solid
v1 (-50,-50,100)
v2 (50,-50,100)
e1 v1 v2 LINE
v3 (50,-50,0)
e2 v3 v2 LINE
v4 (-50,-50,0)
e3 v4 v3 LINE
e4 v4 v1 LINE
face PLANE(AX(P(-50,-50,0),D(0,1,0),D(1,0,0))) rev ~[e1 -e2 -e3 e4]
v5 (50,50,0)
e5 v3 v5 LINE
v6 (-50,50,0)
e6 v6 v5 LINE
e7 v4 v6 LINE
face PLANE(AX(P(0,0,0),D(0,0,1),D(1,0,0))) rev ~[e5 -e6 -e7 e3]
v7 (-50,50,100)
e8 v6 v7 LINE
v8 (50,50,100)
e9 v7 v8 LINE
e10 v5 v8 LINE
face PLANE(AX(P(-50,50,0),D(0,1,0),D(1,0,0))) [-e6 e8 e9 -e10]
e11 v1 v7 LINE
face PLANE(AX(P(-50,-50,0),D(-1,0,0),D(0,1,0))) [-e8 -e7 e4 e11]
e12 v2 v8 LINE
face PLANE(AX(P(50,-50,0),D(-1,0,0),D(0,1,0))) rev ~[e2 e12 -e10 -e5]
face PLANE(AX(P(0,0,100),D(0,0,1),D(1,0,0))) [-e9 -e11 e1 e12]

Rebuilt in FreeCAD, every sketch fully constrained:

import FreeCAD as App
import Part
import Sketcher
from FreeCAD import Vector


def add_polygon(sketch, points):
    """Adds a closed chain of lines whose ends are joined by coincident constraints."""
    first, n = sketch.GeometryCount, len(points)
    for a, b in zip(points, points[1:] + points[:1]):
        sketch.addGeometry(Part.LineSegment(App.Vector(*a, 0), App.Vector(*b, 0)), False)
    for i in range(n):
        sketch.addConstraint(Sketcher.Constraint("Coincident", first + i, 2, first + (i + 1) % n, 1))

doc = App.newDocument("Part")
body = doc.addObject("PartDesign::Body", "Body")

# Sketch on XY plane
sketch1 = body.newObject("Sketcher::SketchObject", "Sketch")
sketch1.AttachmentSupport = (doc.getObject("XY_Plane"), [""])
sketch1.MapMode = "FlatFace"
add_polygon(sketch1, [(-50, 50), (-50, -50), (50, -50), (50, 50)])  # lines 0-3
sketch1.addConstraint([
    Sketcher.Constraint("Vertical", 0),
    Sketcher.Constraint("Horizontal", 1),
    Sketcher.Constraint("Vertical", 2),
    Sketcher.Constraint("Horizontal", 3),
    Sketcher.Constraint("Symmetric", 0, 2, 2, 2, -1, 1),
    Sketcher.Constraint("Equal", 3, 0),
    Sketcher.Constraint("DistanceX", 1, 1, 1, 2, 100.0),
])
pad1 = body.newObject("PartDesign::Pad", "Pad")
pad1.Profile = sketch1
pad1.Length = 100

doc.recompute()
